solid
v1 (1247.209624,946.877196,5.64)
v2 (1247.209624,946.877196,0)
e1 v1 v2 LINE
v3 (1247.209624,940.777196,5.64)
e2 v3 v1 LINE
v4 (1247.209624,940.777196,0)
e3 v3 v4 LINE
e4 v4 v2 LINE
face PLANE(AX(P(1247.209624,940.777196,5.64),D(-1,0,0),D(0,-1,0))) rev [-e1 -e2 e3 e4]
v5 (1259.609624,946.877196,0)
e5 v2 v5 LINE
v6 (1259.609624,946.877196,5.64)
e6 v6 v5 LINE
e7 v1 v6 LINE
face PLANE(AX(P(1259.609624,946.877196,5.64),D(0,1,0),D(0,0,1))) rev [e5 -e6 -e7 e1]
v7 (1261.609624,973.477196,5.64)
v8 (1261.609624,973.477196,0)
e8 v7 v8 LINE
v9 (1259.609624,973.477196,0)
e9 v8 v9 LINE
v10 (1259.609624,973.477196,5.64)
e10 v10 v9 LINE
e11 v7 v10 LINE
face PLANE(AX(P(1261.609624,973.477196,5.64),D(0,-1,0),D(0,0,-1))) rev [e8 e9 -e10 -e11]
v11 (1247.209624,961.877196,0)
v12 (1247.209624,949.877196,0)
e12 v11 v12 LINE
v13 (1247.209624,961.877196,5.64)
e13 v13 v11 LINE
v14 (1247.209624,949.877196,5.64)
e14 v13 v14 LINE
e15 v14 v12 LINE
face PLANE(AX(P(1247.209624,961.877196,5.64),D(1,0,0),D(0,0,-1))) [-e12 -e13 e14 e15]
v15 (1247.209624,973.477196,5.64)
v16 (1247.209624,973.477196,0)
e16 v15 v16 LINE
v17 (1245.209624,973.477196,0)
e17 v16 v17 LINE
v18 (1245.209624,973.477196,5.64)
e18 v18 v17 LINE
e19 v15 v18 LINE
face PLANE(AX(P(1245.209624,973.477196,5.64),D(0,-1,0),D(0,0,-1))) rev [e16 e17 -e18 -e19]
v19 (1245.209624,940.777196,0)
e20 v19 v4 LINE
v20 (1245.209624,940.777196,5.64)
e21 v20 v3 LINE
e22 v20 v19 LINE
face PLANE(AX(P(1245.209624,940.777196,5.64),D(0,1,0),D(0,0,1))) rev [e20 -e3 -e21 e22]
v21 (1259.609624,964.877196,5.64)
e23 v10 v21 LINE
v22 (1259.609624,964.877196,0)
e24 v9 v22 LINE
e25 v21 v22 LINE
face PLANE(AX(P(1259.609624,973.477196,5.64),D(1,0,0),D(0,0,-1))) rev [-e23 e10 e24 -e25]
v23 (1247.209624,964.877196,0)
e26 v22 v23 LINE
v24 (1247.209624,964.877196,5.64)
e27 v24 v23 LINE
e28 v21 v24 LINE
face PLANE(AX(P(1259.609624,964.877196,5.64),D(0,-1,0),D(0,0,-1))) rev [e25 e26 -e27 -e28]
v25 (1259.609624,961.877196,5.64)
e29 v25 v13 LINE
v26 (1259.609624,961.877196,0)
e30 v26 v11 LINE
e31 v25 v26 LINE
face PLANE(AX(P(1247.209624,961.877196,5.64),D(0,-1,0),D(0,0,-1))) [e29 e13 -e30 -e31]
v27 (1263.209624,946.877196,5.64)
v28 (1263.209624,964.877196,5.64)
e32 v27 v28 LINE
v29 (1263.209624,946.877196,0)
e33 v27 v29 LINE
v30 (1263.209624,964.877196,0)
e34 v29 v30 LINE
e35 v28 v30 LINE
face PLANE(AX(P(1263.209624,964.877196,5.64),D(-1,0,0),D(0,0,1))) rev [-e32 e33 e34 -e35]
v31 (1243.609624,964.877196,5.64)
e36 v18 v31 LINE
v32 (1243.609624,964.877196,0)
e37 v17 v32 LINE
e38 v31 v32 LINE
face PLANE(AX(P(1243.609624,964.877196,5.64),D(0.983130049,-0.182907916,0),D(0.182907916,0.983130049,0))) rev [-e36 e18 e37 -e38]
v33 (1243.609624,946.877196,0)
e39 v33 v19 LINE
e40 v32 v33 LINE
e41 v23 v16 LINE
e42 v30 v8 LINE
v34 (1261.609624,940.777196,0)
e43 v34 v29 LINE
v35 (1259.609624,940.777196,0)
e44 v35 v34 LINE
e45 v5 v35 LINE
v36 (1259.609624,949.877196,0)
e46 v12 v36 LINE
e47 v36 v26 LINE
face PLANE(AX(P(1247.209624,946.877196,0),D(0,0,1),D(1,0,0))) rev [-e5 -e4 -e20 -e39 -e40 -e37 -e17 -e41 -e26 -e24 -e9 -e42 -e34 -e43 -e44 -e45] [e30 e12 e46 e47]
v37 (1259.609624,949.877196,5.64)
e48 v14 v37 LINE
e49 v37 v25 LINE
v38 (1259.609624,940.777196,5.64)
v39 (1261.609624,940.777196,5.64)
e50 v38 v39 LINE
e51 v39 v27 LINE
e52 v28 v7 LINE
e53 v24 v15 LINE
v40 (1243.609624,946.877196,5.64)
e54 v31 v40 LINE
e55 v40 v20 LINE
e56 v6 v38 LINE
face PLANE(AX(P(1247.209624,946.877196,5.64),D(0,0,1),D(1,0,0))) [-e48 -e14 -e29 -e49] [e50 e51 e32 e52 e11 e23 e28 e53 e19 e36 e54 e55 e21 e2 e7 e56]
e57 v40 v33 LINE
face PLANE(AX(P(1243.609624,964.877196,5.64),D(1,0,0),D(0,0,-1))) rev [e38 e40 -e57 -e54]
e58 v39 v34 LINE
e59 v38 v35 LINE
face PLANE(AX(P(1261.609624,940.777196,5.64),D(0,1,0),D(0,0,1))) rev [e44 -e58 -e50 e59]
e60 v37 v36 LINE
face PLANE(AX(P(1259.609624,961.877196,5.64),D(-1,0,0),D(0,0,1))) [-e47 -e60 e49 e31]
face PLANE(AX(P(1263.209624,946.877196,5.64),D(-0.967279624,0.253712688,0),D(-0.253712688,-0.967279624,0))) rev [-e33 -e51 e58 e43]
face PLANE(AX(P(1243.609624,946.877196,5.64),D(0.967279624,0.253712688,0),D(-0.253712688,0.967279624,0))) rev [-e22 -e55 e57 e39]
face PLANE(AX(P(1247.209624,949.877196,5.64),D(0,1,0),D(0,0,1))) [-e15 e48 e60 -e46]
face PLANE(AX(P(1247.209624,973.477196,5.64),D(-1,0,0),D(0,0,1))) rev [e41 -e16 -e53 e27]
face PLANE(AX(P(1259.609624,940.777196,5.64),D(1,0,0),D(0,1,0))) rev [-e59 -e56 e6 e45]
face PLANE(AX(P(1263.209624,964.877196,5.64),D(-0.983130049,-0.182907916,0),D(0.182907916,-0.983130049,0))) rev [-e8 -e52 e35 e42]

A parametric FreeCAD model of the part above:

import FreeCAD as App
import Part
import Sketcher
from FreeCAD import Vector

doc = App.newDocument("Part")
body = doc.addObject("PartDesign::Body", "Body")

# Sketch on XY plane
sketch1 = body.newObject("Sketcher::SketchObject", "Sketch")
sketch1.AttachmentSupport = (doc.getObject("XY_Plane"), [""])
sketch1.MapMode = "FlatFace"
sketch1.addGeometry([
    Part.LineSegment(Vector(1247.2, 973.5, 0), Vector(1245.2, 973.5, 0)),  # 0
    Part.LineSegment(Vector(1245.2, 973.5, 0), Vector(1243.6, 964.9, 0)),  # 1
    Part.LineSegment(Vector(1243.6, 964.9, 0), Vector(1243.6, 946.9, 0)),  # 2
    Part.LineSegment(Vector(1243.6, 946.9, 0), Vector(1245.2, 940.8, 0)),  # 3
    Part.LineSegment(Vector(1245.2, 940.8, 0), Vector(1247.2, 940.8, 0)),  # 4
    Part.LineSegment(Vector(1247.2, 940.8, 0), Vector(1247.2, 946.9, 0)),  # 5
    Part.LineSegment(Vector(1247.2, 946.9, 0), Vector(1259.6, 946.9, 0)),  # 6
    Part.LineSegment(Vector(1259.6, 946.9, 0), Vector(1259.6, 940.8, 0)),  # 7
    Part.LineSegment(Vector(1259.6, 940.8, 0), Vector(1261.6, 940.8, 0)),  # 8
    Part.LineSegment(Vector(1261.6, 940.8, 0), Vector(1263.2, 946.9, 0)),  # 9
    Part.LineSegment(Vector(1263.2, 946.9, 0), Vector(1263.2, 964.9, 0)),  # 10
    Part.LineSegment(Vector(1263.2, 964.9, 0), Vector(1261.6, 973.5, 0)),  # 11
    Part.LineSegment(Vector(1261.6, 973.5, 0), Vector(1259.6, 973.5, 0)),  # 12
    Part.LineSegment(Vector(1259.6, 973.5, 0), Vector(1259.6, 964.9, 0)),  # 13
    Part.LineSegment(Vector(1259.6, 964.9, 0), Vector(1247.2, 964.9, 0)),  # 14
    Part.LineSegment(Vector(1247.2, 964.9, 0), Vector(1247.2, 973.5, 0)),  # 15
    Part.LineSegment(Vector(1247.2, 949.9, 0), Vector(1247.2, 961.9, 0)),  # 16
    Part.LineSegment(Vector(1247.2, 961.9, 0), Vector(1259.6, 961.9, 0)),  # 17
    Part.LineSegment(Vector(1259.6, 961.9, 0), Vector(1259.6, 949.9, 0)),  # 18
    Part.LineSegment(Vector(1259.6, 949.9, 0), Vector(1247.2, 949.9, 0)),  # 19
], False)
sketch1.addConstraint([
    Sketcher.Constraint("Coincident", 0, 2, 1, 1),
    Sketcher.Constraint("Coincident", 1, 2, 2, 1),
    Sketcher.Constraint("Coincident", 2, 2, 3, 1),
    Sketcher.Constraint("Coincident", 3, 2, 4, 1),
    Sketcher.Constraint("Coincident", 4, 2, 5, 1),
    Sketcher.Constraint("Coincident", 5, 2, 6, 1),
    Sketcher.Constraint("Coincident", 6, 2, 7, 1),
    Sketcher.Constraint("Coincident", 7, 2, 8, 1),
    Sketcher.Constraint("Coincident", 8, 2, 9, 1),
    Sketcher.Constraint("Coincident", 9, 2, 10, 1),
    Sketcher.Constraint("Coincident", 10, 2, 11, 1),
    Sketcher.Constraint("Coincident", 11, 2, 12, 1),
    Sketcher.Constraint("Coincident", 12, 2, 13, 1),
    Sketcher.Constraint("Coincident", 13, 2, 14, 1),
    Sketcher.Constraint("Coincident", 14, 2, 15, 1),
    Sketcher.Constraint("Coincident", 15, 2, 0, 1),
    Sketcher.Constraint("Coincident", 16, 2, 17, 1),
    Sketcher.Constraint("Coincident", 17, 2, 18, 1),
    Sketcher.Constraint("Coincident", 18, 2, 19, 1),
    Sketcher.Constraint("Coincident", 19, 2, 16, 1),
    Sketcher.Constraint("Horizontal", 0),
    Sketcher.Constraint("Vertical", 2),
    Sketcher.Constraint("Horizontal", 4),
    Sketcher.Constraint("Vertical", 5),
    Sketcher.Constraint("Horizontal", 6),
    Sketcher.Constraint("Vertical", 7),
    Sketcher.Constraint("Horizontal", 8),
    Sketcher.Constraint("Vertical", 10),
    Sketcher.Constraint("Horizontal", 12),
    Sketcher.Constraint("Vertical", 13),
    Sketcher.Constraint("Horizontal", 14),
    Sketcher.Constraint("Vertical", 15),
    Sketcher.Constraint("Vertical", 16),
    Sketcher.Constraint("Horizontal", 17),
    Sketcher.Constraint("Vertical", 18),
    Sketcher.Constraint("Horizontal", 19),
    Sketcher.Constraint("Horizontal", 2, 2, 5, 2),
    Sketcher.Constraint("Horizontal", 4, 2, 7, 2),
    Sketcher.Constraint("Horizontal", 6, 2, 9, 2),
    Sketcher.Constraint("Horizontal", 1, 2, 10, 2),
    Sketcher.Constraint("Horizontal", 0, 2, 11, 2),
    Sketcher.Constraint("Horizontal", 10, 2, 13, 2),
    Sketcher.Constraint("Vertical", 0, 2, 3, 2),
    Sketcher.Constraint("Vertical", 8, 2, 11, 2),
    Sketcher.Constraint("Vertical", 7, 2, 12, 2),
    Sketcher.Constraint("Vertical", 5, 2, 14, 2),
    Sketcher.Constraint("Vertical", 15, 2, 16, 2),
    Sketcher.Constraint("Vertical", 13, 2, 17, 2),
    Sketcher.Constraint("Equal", 4, 8),
    Sketcher.Constraint("Equal", 3, 9),
    Sketcher.Constraint("DistanceX", 0, 2, 0, 1, 2.0),
    Sketcher.Constraint("DistanceY", 2, 2, 2, 1, 18.0),
    Sketcher.Constraint("DistanceY", 16, 1, 16, 2, 12.0),
    Sketcher.Constraint("DistanceX", 6, 1, 6, 2, 12.4),
    Sketcher.Constraint("DistanceY", 5, 1, 5, 2, 6.1),
    Sketcher.Constraint("DistanceY", 13, 2, 13, 1, 8.6),
    Sketcher.Constraint("DistanceX", 2, 2, 6, 2, 16.0),
    Sketcher.Constraint("DistanceY", 16, 2, 14, 2, 3.0),
    Sketcher.Constraint("DistanceX", -1, 1, 0, 2, 1245.209624),
    Sketcher.Constraint("DistanceY", -1, 1, 0, 2, 973.477196),
])
pad1 = body.newObject("PartDesign::Pad", "Pad")
pad1.Profile = sketch1
pad1.Length = 5.64

doc.recompute()
